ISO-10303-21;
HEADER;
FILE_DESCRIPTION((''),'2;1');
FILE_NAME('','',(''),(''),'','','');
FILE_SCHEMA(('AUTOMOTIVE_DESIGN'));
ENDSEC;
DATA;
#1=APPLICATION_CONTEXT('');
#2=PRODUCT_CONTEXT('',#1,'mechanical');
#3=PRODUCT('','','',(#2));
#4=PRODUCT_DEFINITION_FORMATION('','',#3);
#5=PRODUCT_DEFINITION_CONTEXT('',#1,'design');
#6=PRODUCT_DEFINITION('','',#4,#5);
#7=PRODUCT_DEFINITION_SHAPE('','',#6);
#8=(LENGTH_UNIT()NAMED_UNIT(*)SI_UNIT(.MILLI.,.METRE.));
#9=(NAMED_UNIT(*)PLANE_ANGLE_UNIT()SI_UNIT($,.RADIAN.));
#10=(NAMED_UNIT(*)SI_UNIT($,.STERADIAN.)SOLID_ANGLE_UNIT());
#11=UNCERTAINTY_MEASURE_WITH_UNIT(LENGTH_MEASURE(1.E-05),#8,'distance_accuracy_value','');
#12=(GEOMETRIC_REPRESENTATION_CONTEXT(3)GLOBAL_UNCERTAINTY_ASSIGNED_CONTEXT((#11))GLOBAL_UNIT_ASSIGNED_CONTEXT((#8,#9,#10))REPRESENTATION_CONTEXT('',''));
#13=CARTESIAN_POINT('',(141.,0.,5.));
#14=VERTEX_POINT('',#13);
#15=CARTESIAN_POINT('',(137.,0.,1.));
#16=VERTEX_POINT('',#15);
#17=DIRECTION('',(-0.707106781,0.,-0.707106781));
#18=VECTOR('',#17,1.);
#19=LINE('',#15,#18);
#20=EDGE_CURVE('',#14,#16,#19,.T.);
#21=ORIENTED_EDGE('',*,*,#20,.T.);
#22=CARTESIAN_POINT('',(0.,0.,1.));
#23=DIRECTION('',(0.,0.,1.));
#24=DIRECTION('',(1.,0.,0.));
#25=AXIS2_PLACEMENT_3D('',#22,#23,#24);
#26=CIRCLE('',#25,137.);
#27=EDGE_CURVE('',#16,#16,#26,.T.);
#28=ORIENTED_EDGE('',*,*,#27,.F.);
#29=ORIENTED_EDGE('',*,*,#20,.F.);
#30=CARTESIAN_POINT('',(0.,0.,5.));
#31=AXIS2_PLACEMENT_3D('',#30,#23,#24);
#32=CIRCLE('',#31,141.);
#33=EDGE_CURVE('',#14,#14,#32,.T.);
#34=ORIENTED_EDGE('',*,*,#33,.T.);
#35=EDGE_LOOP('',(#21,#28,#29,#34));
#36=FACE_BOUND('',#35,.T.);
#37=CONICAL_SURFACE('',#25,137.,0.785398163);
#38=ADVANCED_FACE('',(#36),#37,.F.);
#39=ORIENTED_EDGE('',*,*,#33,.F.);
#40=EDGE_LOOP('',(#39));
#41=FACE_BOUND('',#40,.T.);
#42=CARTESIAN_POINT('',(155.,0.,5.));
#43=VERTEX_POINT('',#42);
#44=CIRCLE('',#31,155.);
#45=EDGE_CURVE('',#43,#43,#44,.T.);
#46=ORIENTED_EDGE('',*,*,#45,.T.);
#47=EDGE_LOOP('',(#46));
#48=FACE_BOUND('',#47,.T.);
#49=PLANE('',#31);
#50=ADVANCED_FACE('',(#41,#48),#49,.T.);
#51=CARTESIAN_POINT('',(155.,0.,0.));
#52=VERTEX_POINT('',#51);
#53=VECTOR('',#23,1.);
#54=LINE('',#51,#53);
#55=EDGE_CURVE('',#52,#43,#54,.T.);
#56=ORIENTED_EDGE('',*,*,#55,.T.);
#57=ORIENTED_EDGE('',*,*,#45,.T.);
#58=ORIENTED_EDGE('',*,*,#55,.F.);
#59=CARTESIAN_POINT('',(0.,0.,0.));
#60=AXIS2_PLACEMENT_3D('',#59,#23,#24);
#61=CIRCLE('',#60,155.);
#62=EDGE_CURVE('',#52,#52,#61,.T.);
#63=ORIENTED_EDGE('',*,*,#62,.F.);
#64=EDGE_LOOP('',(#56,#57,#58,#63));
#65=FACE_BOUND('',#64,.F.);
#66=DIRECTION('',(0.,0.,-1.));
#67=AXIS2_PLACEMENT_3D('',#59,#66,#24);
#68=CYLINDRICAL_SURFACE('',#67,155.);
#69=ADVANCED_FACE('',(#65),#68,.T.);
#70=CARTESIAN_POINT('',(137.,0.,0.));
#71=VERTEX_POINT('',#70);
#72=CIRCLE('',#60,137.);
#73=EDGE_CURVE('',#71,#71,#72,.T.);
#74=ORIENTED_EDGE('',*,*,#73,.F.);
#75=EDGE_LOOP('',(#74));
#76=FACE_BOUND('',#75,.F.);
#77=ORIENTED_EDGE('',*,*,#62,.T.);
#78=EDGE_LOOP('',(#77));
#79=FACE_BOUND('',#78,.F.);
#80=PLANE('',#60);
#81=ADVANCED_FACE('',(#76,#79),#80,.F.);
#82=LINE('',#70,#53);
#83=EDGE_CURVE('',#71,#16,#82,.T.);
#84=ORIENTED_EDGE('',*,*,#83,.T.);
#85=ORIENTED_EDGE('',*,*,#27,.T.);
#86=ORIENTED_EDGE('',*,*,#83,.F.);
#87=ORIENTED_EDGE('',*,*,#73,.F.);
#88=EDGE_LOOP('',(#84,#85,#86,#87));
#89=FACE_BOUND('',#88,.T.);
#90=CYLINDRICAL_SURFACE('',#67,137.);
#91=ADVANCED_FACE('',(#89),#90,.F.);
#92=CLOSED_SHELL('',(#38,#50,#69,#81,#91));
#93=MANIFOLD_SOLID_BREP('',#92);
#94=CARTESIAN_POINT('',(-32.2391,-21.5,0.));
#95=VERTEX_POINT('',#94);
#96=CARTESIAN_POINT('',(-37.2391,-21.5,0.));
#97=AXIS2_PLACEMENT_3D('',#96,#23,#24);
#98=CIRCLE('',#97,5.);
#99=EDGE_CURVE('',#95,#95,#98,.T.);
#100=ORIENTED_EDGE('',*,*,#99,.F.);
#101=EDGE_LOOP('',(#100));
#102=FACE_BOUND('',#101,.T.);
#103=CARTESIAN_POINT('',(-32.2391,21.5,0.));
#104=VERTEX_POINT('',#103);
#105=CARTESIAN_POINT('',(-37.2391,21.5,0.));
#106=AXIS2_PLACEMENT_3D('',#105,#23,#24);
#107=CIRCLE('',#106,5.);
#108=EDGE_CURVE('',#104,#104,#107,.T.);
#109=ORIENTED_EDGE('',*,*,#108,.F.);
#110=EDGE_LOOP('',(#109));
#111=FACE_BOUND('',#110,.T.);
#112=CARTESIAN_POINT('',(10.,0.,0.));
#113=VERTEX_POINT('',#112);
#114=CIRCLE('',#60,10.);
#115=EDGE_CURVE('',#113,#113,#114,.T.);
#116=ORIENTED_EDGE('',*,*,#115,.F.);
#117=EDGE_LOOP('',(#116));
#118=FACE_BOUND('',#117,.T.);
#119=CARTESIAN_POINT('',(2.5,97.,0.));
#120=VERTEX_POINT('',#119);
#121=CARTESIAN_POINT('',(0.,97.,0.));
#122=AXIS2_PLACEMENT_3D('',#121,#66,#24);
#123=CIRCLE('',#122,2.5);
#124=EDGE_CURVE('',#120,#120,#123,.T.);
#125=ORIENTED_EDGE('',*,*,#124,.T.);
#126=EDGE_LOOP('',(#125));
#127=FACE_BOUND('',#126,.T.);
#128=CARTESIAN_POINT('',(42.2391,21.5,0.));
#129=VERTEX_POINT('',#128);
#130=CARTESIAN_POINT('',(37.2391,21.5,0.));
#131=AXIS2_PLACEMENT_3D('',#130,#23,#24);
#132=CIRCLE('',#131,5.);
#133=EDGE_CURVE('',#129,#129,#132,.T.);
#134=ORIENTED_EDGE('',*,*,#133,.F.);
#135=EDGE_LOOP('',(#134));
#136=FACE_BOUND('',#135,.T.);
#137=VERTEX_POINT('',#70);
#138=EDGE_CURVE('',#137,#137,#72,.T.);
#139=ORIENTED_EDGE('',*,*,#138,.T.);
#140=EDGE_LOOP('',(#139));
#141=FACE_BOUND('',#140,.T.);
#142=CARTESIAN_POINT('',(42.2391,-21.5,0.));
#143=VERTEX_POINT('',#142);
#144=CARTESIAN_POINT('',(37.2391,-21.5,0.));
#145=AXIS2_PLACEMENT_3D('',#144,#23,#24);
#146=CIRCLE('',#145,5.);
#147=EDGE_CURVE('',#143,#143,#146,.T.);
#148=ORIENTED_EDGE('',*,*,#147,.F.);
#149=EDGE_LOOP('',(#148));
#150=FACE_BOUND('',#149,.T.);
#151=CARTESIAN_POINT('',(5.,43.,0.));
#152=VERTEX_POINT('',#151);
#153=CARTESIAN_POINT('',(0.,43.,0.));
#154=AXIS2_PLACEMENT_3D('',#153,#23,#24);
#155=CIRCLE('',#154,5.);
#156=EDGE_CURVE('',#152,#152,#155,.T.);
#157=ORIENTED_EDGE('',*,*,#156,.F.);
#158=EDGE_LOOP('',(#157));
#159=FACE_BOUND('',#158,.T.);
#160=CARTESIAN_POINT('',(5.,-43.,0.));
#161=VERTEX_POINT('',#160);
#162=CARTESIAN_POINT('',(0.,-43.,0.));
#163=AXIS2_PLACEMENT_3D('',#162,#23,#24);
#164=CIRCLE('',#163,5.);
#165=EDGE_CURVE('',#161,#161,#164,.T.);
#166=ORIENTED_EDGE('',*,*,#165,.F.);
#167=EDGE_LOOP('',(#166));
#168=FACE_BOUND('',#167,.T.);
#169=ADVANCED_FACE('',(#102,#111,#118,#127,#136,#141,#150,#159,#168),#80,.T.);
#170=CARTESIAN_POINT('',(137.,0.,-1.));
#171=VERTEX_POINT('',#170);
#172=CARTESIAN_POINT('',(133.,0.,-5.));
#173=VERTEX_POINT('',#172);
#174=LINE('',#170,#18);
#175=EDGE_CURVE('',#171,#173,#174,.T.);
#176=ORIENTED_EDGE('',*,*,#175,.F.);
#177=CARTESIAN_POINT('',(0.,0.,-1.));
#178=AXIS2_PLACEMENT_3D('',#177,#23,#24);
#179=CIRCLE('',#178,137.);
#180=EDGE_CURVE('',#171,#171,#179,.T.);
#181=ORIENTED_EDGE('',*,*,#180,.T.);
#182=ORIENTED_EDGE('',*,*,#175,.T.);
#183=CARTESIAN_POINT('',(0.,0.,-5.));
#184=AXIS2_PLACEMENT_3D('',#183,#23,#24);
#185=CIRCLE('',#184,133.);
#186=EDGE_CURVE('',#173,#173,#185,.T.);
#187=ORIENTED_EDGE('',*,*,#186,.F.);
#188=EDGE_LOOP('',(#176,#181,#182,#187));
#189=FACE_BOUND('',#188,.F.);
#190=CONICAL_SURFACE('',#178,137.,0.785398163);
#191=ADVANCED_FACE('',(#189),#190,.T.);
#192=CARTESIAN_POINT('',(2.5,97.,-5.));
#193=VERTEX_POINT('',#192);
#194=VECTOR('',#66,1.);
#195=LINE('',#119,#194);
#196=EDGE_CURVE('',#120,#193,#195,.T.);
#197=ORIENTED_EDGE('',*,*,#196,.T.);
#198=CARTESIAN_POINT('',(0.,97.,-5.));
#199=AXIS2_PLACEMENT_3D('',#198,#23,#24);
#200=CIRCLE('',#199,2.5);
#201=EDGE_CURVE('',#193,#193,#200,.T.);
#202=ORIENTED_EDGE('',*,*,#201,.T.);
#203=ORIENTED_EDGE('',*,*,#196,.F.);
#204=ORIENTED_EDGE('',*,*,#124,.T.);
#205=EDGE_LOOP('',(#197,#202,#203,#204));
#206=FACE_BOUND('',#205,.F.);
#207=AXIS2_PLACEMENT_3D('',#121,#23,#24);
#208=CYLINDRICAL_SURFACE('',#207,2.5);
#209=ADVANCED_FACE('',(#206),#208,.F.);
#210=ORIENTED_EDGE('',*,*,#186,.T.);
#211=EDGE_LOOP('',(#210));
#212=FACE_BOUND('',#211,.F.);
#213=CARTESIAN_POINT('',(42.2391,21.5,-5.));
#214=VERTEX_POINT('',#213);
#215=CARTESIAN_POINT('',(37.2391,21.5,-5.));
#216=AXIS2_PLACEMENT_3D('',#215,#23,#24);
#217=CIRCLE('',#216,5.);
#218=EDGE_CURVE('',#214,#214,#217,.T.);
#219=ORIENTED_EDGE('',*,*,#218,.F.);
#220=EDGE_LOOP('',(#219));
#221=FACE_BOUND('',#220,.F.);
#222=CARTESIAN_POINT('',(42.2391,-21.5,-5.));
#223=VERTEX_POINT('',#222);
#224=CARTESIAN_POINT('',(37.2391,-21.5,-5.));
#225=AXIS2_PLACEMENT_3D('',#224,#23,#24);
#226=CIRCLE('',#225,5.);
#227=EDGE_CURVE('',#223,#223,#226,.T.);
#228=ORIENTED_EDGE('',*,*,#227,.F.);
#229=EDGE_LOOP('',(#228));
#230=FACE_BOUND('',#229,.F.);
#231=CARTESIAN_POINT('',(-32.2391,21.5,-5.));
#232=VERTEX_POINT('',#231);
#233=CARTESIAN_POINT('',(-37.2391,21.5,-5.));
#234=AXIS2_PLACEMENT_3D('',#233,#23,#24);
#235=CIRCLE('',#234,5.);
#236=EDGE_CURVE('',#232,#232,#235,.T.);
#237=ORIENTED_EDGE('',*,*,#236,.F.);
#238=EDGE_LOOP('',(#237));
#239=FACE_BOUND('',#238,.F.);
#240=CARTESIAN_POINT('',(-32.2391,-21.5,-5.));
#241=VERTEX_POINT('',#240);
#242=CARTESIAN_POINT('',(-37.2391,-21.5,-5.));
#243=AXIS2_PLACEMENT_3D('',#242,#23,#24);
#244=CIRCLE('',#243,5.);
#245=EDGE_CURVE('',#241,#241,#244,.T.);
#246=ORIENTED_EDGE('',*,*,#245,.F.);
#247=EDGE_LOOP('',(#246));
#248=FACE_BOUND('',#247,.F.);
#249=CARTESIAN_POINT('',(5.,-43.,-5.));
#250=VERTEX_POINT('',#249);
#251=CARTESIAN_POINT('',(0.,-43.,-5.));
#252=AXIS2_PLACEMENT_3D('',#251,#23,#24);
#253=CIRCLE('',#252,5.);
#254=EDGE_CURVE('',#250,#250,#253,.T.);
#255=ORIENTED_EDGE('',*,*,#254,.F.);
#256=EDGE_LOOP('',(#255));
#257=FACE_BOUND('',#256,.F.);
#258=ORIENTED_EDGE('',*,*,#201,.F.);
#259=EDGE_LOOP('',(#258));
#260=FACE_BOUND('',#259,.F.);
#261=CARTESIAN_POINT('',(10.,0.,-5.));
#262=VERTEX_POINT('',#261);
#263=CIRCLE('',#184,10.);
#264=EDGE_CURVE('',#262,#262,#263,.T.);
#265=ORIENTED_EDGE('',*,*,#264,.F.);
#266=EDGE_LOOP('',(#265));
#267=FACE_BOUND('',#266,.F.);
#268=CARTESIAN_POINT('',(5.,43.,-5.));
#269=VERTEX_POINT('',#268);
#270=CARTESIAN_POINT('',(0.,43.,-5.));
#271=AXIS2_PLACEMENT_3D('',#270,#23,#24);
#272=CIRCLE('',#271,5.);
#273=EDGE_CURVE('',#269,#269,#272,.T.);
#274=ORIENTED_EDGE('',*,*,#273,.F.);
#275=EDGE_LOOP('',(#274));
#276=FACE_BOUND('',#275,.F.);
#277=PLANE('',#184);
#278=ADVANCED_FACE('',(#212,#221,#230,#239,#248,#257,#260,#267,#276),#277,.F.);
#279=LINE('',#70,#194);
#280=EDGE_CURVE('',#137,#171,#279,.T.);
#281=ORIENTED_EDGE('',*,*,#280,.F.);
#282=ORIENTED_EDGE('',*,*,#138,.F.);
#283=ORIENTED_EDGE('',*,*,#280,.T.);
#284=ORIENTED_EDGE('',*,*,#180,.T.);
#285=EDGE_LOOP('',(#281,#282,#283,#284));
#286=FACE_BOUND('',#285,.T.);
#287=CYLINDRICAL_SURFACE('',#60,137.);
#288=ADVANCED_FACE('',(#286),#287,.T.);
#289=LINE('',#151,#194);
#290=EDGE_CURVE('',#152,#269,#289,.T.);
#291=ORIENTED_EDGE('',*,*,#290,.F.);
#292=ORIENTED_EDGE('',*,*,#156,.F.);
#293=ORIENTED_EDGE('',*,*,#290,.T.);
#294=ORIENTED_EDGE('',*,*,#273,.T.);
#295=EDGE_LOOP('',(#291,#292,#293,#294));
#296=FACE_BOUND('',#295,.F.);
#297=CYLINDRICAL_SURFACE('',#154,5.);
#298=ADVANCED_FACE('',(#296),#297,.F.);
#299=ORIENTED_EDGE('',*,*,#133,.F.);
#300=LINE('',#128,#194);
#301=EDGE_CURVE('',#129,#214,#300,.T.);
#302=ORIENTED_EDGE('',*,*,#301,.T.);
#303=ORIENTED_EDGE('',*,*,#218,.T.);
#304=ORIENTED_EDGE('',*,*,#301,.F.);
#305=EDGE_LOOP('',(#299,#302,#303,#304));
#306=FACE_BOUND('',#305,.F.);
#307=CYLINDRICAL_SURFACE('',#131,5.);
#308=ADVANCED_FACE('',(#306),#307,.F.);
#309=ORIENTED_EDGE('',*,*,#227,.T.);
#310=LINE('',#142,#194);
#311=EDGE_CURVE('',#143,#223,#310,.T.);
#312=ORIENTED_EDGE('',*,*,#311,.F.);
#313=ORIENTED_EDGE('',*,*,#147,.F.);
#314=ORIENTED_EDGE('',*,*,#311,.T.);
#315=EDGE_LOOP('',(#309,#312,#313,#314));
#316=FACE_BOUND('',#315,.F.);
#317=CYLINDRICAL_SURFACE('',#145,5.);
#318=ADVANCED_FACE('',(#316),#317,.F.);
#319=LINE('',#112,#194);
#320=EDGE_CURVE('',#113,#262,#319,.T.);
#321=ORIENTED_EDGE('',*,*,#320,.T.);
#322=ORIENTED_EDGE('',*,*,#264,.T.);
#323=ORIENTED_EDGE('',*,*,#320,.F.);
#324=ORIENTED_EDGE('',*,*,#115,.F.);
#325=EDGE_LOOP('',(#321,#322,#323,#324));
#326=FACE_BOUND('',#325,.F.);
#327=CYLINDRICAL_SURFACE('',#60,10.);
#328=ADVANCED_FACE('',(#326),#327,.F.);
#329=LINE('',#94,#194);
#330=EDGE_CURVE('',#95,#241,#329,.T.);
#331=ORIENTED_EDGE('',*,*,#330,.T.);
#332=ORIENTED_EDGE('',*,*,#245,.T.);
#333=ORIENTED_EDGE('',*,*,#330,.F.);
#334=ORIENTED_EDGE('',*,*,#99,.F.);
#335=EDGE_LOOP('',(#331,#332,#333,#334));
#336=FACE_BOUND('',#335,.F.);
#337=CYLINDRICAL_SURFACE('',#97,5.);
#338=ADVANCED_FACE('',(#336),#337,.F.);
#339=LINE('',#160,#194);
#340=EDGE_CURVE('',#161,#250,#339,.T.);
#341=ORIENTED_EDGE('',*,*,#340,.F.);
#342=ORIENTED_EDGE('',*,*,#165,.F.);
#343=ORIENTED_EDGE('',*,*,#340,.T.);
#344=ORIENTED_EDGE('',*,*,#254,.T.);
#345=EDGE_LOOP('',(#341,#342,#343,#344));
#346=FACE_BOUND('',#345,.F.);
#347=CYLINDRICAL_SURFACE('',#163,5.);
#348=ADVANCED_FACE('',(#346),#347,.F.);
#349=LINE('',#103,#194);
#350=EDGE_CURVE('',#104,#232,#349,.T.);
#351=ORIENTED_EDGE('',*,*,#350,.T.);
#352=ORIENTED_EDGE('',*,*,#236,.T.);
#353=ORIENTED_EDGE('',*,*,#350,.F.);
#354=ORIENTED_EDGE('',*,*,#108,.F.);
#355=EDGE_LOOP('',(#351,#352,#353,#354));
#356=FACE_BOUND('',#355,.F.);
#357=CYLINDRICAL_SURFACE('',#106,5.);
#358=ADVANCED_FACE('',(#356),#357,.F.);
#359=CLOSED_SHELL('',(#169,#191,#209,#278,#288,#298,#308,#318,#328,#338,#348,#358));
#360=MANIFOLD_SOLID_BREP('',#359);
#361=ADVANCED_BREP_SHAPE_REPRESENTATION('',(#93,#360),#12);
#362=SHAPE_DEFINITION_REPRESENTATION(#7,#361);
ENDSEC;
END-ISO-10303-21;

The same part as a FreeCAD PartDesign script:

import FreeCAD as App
import Part
import Sketcher


def edges_at(feature, points):
    """Names of the edges that pass closest to the given points."""
    edges = feature.Shape.Edges
    near = lambda p: min(range(len(edges)), key=lambda i: edges[i].distToShape(Part.Vertex(*p))[0])
    return sorted({f"Edge{near(p) + 1}" for p in points})

doc = App.newDocument("Part")
body = doc.addObject("PartDesign::Body", "Body")
body.AllowCompound = True

# Sketch on XY plane
sketch1 = body.newObject("Sketcher::SketchObject", "Sketch")
sketch1.AttachmentSupport = (doc.getObject("XY_Plane"), [""])
sketch1.MapMode = "FlatFace"
sketch1.addGeometry(Part.Circle(App.Vector(0, 0, 0), App.Vector(0, 0, 1), 155), False)
sketch1.addGeometry(Part.Circle(App.Vector(0, 0, 0), App.Vector(0, 0, 1), 137), False)
sketch1.addConstraint(Sketcher.Constraint("Coincident", 0, 3, -1, 1))
sketch1.addConstraint(Sketcher.Constraint("Coincident", 1, 3, -1, 1))
sketch1.addConstraint(Sketcher.Constraint("Diameter", 0, 310.0))
sketch1.addConstraint(Sketcher.Constraint("Diameter", 1, 274.0))
pad1 = body.newObject("PartDesign::Pad", "Pad")
pad1.Profile = sketch1
pad1.Length = 5

# Sketch on XY plane
sketch2 = body.newObject("Sketcher::SketchObject", "Sketch001")
sketch2.AttachmentSupport = (doc.getObject("XY_Plane"), [""])
sketch2.MapMode = "FlatFace"
sketch2.addGeometry(Part.Circle(App.Vector(0, 0, 0), App.Vector(0, 0, 1), 137), False)
sketch2.addGeometry(Part.Circle(App.Vector(0, 0, 0), App.Vector(0, 0, 1), 10), False)
sketch2.addConstraint(Sketcher.Constraint("Coincident", 0, 3, -1, 1))
sketch2.addConstraint(Sketcher.Constraint("Coincident", 1, 3, -1, 1))
sketch2.addConstraint(Sketcher.Constraint("Diameter", 0, 274.0))
sketch2.addConstraint(Sketcher.Constraint("Diameter", 1, 20.0))
pad2 = body.newObject("PartDesign::Pad", "Pad001")
pad2.Profile = sketch2
pad2.Length = 5
pad2.Reversed = True

# Sketch on XY plane
sketch3 = body.newObject("Sketcher::SketchObject", "Sketch002")
sketch3.AttachmentSupport = (doc.getObject("XY_Plane"), [""])
sketch3.MapMode = "FlatFace"
sketch3.addGeometry(Part.Circle(App.Vector(0, 43, 0), App.Vector(0, 0, 1), 5), False)
sketch3.addGeometry(Part.Circle(App.Vector(-37, 22, 0), App.Vector(0, 0, 1), 5), False)
sketch3.addGeometry(Part.Circle(App.Vector(-37, -22, 0), App.Vector(0, 0, 1), 5), False)
sketch3.addGeometry(Part.Circle(App.Vector(0, -43, 0), App.Vector(0, 0, 1), 5), False)
sketch3.addGeometry(Part.Circle(App.Vector(37, -22, 0), App.Vector(0, 0, 1), 5), False)
sketch3.addGeometry(Part.Circle(App.Vector(37, 22, 0), App.Vector(0, 0, 1), 5), False)
sketch3.addConstraint(Sketcher.Constraint("Equal", 0, 1))
sketch3.addConstraint(Sketcher.Constraint("Equal", 1, 2))
sketch3.addConstraint(Sketcher.Constraint("Equal", 2, 3))
sketch3.addConstraint(Sketcher.Constraint("Equal", 3, 4))
sketch3.addConstraint(Sketcher.Constraint("Equal", 4, 5))
sketch3.addConstraint(Sketcher.Constraint("Symmetric", 0, 3, 3, 3, -1, 1))
sketch3.addConstraint(Sketcher.Constraint("Symmetric", 1, 3, 4, 3, -1, 1))
sketch3.addConstraint(Sketcher.Constraint("Symmetric", 2, 3, 5, 3, -1, 1))
sketch3.addConstraint(Sketcher.Constraint("Symmetric", 2, 3, 4, 3, -2))
sketch3.addConstraint(Sketcher.Constraint("PointOnObject", 0, 3, -2))
sketch3.addConstraint(Sketcher.Constraint("Diameter", 0, 10.0))
sketch3.addConstraint(Sketcher.Constraint("DistanceY", -1, 1, 0, 3, 43.0))
sketch3.addConstraint(Sketcher.Constraint("DistanceY", 2, 3, 1, 3, 43.0))
sketch3.addConstraint(Sketcher.Constraint("DistanceX", 1, 3, -1, 1, 37.239))
pocket1 = body.newObject("PartDesign::Pocket", "Pocket")
pocket1.Profile = sketch3
pocket1.Length = 5
doc.recompute()

chamfer = body.newObject("PartDesign::Chamfer", "Chamfer")
chamfer.Base = (pocket1, edges_at(pocket1, [(-137, 0, 5)]))
chamfer.Size = 4
doc.recompute()

chamfer2 = body.newObject("PartDesign::Chamfer", "Chamfer001")
chamfer2.Base = (chamfer, edges_at(chamfer, [(-137, 0, -5)]))
chamfer2.Size = 4

# Sketch on XY plane
sketch4 = body.newObject("Sketcher::SketchObject", "Sketch003")
sketch4.AttachmentSupport = (doc.getObject("XY_Plane"), [""])
sketch4.MapMode = "FlatFace"
sketch4.addGeometry(Part.Circle(App.Vector(0, 97, 0), App.Vector(0, 0, 1), 2.5), False)
sketch4.addConstraint(Sketcher.Constraint("PointOnObject", 0, 3, -2))
sketch4.addConstraint(Sketcher.Constraint("Diameter", 0, 5.0))
sketch4.addConstraint(Sketcher.Constraint("DistanceY", -1, 1, 0, 3, 97.0))
pocket2 = body.newObject("PartDesign::Pocket", "Pocket001")
pocket2.Profile = sketch4
pocket2.Length = 5

doc.recompute()
